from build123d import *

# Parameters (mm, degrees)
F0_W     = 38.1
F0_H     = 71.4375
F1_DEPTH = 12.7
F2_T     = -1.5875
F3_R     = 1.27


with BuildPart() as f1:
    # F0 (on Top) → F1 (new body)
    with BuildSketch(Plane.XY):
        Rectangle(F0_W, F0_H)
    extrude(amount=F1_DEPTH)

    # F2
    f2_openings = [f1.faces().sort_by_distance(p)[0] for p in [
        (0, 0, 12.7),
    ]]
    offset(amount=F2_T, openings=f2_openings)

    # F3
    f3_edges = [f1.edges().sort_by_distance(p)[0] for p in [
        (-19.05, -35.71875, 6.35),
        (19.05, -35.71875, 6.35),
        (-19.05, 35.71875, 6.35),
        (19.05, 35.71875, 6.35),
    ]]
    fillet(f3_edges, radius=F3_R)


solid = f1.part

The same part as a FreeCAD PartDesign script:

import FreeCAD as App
import Part
import Sketcher

V = App.Vector
Q = App.Units.Quantity


def edges_at(feature, points):
    """Names of the edges that pass closest to the given points."""
    edges = feature.Shape.Edges
    near = lambda p: min(range(len(edges)), key=lambda i: edges[i].distToShape(Part.Vertex(*p))[0])
    return sorted({f"Edge{near(p) + 1}" for p in points})


def faces_at(feature, points):
    """Names of the faces that lie closest to the given points."""
    faces = feature.Shape.Faces
    near = lambda p: min(range(len(faces)), key=lambda i: faces[i].distToShape(Part.Vertex(*p))[0])
    return sorted({f"Face{near(p) + 1}" for p in points})

doc = App.newDocument("Part")
params = doc.addObject("Spreadsheet::Sheet", "Params")
for row, (alias, value) in enumerate([
    ("sketch1_width", "1.5 in"),
    ("sketch1_height", "2.8125 in"),
    ("pad1_length", "0.5 in"),
    ("thickness_wall", "0.0625 in"),
    ("fillet_radius", "0.05 in"),
], start=1):
    params.set(f"A{row}", alias)
    params.set(f"B{row}", "=" + value)
    params.setAlias(f"B{row}", alias)

body = doc.addObject("PartDesign::Body", "Body")

sketch1 = doc.addObject("Sketcher::SketchObject", "Sketch")
body.addObject(sketch1)
sketch1.AttachmentSupport = (doc.XY_Plane, [""])
sketch1.MapMode = "FlatFace"
sketch1.addGeometry([
    Part.LineSegment(V(-19, 36, 0), V(-19, -36, 0)),
    Part.LineSegment(V(-19, -36, 0), V(19, -36, 0)),
    Part.LineSegment(V(19, -36, 0), V(19, 36, 0)),
    Part.LineSegment(V(19, 36, 0), V(-19, 36, 0)),
], False)
sketch1.addConstraint([
    Sketcher.Constraint("Coincident", 0, 2, 1, 1),
    Sketcher.Constraint("Coincident", 1, 2, 2, 1),
    Sketcher.Constraint("Coincident", 2, 2, 3, 1),
    Sketcher.Constraint("Coincident", 3, 2, 0, 1),
    Sketcher.Constraint("Vertical", 0),
    Sketcher.Constraint("Horizontal", 1),
    Sketcher.Constraint("Vertical", 2),
    Sketcher.Constraint("Horizontal", 3),
    Sketcher.Constraint("Symmetric", 0, 2, 2, 2, -1, 1),
    Sketcher.Constraint("DistanceX", 1, 1, 1, 2, Q("1.5 in")),
    Sketcher.Constraint("DistanceY", 0, 2, 0, 1, Q("2.8125 in")),
])
sketch1.setExpression("Constraints[9]", "Params.sketch1_width")
sketch1.setExpression("Constraints[10]", "Params.sketch1_height")
pad1 = doc.addObject("PartDesign::Pad", "Pad")
body.addObject(pad1)
pad1.Profile = sketch1
pad1.setExpression("Length", "Params.pad1_length")
doc.recompute()

thickness = doc.addObject("PartDesign::Thickness", "Thickness")
body.addObject(thickness)
thickness.Base = (pad1, faces_at(pad1, [(0, 0, 12.7)]))
thickness.setExpression("Value", "Params.thickness_wall")
thickness.Reversed = True
thickness.Join = "Arc"
doc.recompute()

fillet = doc.addObject("PartDesign::Fillet", "Fillet")
body.addObject(fillet)
fillet.Base = (thickness, edges_at(thickness, [
    (-19.05, -35.719, 6.35),
    (19.05, -35.719, 6.35),
    (-19.05, 35.719, 6.35),
    (19.05, 35.719, 6.35),
]))
fillet.setExpression("Radius", "Params.fillet_radius")

doc.recompute()
